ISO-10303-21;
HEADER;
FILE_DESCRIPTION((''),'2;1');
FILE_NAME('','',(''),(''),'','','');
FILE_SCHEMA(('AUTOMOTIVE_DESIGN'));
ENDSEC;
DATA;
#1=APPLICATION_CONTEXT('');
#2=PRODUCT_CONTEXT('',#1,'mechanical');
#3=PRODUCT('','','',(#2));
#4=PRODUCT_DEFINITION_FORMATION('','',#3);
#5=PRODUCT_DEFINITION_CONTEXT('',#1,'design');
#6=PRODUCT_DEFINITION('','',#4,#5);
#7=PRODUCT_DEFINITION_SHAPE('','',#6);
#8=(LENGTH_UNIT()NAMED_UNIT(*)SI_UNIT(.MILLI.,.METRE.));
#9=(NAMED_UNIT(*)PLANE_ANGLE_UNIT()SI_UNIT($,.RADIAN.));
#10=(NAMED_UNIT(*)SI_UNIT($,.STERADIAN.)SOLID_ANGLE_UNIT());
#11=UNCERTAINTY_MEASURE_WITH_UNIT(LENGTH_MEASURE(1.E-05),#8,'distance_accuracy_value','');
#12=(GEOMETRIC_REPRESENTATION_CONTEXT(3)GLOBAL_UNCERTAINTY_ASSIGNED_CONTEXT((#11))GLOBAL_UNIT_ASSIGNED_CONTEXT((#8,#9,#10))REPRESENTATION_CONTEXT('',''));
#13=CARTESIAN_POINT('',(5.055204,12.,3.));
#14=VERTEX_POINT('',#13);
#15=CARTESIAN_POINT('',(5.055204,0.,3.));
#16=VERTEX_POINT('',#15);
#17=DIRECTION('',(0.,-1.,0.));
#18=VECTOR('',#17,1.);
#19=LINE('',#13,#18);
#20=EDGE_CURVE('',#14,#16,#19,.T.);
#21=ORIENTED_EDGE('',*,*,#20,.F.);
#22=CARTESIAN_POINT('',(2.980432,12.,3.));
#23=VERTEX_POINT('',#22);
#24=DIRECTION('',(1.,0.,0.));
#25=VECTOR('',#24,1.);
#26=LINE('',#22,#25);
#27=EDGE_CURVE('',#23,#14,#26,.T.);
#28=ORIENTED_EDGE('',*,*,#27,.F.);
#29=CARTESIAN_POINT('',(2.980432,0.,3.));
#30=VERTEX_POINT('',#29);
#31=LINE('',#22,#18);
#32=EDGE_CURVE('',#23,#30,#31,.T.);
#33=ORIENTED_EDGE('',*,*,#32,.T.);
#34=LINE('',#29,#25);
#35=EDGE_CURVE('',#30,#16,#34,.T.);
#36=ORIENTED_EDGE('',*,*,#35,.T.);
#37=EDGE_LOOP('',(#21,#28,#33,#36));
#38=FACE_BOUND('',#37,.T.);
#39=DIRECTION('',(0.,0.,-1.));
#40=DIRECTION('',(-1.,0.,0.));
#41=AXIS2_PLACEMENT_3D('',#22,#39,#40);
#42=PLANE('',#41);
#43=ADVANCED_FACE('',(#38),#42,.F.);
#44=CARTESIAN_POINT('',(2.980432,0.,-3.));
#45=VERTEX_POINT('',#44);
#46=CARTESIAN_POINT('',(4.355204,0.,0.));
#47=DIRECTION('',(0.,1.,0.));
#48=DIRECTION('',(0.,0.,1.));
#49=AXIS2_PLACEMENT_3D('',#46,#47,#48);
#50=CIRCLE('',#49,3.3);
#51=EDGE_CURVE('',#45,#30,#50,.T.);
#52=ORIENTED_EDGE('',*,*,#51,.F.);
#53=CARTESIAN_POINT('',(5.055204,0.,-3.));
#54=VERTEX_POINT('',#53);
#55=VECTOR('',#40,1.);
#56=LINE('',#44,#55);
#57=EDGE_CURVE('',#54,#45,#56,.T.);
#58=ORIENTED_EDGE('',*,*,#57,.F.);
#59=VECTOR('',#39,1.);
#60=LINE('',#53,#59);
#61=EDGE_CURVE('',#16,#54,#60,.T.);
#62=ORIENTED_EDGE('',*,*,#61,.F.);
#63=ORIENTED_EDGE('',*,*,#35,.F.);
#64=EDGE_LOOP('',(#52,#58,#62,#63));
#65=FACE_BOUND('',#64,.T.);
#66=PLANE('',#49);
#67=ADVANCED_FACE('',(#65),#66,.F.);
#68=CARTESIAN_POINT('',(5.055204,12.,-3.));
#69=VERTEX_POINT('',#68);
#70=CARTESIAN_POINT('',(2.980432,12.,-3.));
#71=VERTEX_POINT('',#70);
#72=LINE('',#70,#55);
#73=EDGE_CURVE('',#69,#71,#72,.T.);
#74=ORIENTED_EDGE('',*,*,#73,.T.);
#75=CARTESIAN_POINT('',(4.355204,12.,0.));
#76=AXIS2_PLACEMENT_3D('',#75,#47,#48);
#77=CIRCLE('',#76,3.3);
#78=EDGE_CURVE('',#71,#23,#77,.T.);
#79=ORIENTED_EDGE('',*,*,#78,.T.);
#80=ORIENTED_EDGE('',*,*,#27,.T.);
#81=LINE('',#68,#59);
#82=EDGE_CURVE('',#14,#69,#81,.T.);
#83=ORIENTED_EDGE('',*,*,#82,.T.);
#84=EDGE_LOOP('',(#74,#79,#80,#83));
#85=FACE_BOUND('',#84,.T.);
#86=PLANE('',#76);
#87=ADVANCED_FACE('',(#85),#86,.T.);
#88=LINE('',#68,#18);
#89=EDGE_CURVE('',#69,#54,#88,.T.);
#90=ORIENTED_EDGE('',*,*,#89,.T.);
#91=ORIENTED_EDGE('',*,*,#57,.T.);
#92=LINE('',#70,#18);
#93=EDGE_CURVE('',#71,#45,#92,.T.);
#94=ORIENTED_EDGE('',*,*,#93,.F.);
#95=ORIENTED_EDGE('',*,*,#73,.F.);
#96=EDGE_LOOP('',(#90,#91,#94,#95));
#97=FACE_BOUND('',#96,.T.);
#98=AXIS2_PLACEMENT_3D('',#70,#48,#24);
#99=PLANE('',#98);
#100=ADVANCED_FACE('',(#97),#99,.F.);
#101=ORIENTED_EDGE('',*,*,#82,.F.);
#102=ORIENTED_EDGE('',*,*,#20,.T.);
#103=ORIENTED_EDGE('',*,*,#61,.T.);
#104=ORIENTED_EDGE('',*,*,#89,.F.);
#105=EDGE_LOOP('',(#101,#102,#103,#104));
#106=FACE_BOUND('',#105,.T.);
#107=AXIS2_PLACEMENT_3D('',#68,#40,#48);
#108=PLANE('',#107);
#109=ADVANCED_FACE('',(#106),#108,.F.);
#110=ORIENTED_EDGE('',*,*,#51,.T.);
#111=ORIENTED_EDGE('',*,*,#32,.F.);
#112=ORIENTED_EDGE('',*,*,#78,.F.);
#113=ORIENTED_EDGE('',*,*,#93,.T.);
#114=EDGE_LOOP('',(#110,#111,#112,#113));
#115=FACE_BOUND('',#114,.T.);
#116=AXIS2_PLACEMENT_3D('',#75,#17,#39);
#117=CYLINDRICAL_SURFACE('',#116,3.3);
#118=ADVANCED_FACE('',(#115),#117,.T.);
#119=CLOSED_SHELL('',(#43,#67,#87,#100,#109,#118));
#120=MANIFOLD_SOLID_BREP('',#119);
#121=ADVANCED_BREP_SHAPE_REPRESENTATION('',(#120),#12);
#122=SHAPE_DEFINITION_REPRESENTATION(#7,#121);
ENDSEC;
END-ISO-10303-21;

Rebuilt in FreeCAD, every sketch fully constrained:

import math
import FreeCAD as App
import Part
import Sketcher
from FreeCAD import Vector
Q = App.Units.Quantity

doc = App.newDocument("Part")
body = doc.addObject("PartDesign::Body", "Body")

sketch1 = body.newObject("Sketcher::SketchObject", "Sketch")
sketch1.AttachmentSupport = (doc.getObject("XZ_Plane"), [""])
sketch1.MapMode = "FlatFace"
sketch1.addGeometry([
    Part.LineSegment(Vector(5.1, -3, 0), Vector(3, -3, 0)),
    Part.ArcOfCircle(Part.Circle(Vector(4.4, 0, 0), Vector(0, 0, 1), 3.3), math.radians(115), math.radians(245)),
    Part.LineSegment(Vector(3, 3, 0), Vector(5.1, 3, 0)),
    Part.LineSegment(Vector(5.1, 3, 0), Vector(5.1, -3, 0)),
], False)
sketch1.addConstraint([
    Sketcher.Constraint("Coincident", 0, 2, 1, 2),
    Sketcher.Constraint("Coincident", 1, 1, 2, 1),
    Sketcher.Constraint("Coincident", 2, 2, 3, 1),
    Sketcher.Constraint("Coincident", 3, 2, 0, 1),
    Sketcher.Constraint("Horizontal", 0),
    Sketcher.Constraint("Horizontal", 2),
    Sketcher.Constraint("Vertical", 3),
    Sketcher.Constraint("Symmetric", 0, 2, 1, 1, -1),
    Sketcher.Constraint("Radius", 1, Q("3.3 mm")),
    Sketcher.Constraint("DistanceY", 3, 2, 3, 1, Q("6 mm")),
    Sketcher.Constraint("DistanceX", 1, 3, 2, 2, Q("0.7 mm")),
    Sketcher.Constraint("DistanceX", -1, 1, 0, 2, Q("2.980432 mm")),
])
pad1 = body.newObject("PartDesign::Pad", "Pad")
pad1.Profile = sketch1
pad1.Length = 12
pad1.Reversed = True

doc.recompute()
